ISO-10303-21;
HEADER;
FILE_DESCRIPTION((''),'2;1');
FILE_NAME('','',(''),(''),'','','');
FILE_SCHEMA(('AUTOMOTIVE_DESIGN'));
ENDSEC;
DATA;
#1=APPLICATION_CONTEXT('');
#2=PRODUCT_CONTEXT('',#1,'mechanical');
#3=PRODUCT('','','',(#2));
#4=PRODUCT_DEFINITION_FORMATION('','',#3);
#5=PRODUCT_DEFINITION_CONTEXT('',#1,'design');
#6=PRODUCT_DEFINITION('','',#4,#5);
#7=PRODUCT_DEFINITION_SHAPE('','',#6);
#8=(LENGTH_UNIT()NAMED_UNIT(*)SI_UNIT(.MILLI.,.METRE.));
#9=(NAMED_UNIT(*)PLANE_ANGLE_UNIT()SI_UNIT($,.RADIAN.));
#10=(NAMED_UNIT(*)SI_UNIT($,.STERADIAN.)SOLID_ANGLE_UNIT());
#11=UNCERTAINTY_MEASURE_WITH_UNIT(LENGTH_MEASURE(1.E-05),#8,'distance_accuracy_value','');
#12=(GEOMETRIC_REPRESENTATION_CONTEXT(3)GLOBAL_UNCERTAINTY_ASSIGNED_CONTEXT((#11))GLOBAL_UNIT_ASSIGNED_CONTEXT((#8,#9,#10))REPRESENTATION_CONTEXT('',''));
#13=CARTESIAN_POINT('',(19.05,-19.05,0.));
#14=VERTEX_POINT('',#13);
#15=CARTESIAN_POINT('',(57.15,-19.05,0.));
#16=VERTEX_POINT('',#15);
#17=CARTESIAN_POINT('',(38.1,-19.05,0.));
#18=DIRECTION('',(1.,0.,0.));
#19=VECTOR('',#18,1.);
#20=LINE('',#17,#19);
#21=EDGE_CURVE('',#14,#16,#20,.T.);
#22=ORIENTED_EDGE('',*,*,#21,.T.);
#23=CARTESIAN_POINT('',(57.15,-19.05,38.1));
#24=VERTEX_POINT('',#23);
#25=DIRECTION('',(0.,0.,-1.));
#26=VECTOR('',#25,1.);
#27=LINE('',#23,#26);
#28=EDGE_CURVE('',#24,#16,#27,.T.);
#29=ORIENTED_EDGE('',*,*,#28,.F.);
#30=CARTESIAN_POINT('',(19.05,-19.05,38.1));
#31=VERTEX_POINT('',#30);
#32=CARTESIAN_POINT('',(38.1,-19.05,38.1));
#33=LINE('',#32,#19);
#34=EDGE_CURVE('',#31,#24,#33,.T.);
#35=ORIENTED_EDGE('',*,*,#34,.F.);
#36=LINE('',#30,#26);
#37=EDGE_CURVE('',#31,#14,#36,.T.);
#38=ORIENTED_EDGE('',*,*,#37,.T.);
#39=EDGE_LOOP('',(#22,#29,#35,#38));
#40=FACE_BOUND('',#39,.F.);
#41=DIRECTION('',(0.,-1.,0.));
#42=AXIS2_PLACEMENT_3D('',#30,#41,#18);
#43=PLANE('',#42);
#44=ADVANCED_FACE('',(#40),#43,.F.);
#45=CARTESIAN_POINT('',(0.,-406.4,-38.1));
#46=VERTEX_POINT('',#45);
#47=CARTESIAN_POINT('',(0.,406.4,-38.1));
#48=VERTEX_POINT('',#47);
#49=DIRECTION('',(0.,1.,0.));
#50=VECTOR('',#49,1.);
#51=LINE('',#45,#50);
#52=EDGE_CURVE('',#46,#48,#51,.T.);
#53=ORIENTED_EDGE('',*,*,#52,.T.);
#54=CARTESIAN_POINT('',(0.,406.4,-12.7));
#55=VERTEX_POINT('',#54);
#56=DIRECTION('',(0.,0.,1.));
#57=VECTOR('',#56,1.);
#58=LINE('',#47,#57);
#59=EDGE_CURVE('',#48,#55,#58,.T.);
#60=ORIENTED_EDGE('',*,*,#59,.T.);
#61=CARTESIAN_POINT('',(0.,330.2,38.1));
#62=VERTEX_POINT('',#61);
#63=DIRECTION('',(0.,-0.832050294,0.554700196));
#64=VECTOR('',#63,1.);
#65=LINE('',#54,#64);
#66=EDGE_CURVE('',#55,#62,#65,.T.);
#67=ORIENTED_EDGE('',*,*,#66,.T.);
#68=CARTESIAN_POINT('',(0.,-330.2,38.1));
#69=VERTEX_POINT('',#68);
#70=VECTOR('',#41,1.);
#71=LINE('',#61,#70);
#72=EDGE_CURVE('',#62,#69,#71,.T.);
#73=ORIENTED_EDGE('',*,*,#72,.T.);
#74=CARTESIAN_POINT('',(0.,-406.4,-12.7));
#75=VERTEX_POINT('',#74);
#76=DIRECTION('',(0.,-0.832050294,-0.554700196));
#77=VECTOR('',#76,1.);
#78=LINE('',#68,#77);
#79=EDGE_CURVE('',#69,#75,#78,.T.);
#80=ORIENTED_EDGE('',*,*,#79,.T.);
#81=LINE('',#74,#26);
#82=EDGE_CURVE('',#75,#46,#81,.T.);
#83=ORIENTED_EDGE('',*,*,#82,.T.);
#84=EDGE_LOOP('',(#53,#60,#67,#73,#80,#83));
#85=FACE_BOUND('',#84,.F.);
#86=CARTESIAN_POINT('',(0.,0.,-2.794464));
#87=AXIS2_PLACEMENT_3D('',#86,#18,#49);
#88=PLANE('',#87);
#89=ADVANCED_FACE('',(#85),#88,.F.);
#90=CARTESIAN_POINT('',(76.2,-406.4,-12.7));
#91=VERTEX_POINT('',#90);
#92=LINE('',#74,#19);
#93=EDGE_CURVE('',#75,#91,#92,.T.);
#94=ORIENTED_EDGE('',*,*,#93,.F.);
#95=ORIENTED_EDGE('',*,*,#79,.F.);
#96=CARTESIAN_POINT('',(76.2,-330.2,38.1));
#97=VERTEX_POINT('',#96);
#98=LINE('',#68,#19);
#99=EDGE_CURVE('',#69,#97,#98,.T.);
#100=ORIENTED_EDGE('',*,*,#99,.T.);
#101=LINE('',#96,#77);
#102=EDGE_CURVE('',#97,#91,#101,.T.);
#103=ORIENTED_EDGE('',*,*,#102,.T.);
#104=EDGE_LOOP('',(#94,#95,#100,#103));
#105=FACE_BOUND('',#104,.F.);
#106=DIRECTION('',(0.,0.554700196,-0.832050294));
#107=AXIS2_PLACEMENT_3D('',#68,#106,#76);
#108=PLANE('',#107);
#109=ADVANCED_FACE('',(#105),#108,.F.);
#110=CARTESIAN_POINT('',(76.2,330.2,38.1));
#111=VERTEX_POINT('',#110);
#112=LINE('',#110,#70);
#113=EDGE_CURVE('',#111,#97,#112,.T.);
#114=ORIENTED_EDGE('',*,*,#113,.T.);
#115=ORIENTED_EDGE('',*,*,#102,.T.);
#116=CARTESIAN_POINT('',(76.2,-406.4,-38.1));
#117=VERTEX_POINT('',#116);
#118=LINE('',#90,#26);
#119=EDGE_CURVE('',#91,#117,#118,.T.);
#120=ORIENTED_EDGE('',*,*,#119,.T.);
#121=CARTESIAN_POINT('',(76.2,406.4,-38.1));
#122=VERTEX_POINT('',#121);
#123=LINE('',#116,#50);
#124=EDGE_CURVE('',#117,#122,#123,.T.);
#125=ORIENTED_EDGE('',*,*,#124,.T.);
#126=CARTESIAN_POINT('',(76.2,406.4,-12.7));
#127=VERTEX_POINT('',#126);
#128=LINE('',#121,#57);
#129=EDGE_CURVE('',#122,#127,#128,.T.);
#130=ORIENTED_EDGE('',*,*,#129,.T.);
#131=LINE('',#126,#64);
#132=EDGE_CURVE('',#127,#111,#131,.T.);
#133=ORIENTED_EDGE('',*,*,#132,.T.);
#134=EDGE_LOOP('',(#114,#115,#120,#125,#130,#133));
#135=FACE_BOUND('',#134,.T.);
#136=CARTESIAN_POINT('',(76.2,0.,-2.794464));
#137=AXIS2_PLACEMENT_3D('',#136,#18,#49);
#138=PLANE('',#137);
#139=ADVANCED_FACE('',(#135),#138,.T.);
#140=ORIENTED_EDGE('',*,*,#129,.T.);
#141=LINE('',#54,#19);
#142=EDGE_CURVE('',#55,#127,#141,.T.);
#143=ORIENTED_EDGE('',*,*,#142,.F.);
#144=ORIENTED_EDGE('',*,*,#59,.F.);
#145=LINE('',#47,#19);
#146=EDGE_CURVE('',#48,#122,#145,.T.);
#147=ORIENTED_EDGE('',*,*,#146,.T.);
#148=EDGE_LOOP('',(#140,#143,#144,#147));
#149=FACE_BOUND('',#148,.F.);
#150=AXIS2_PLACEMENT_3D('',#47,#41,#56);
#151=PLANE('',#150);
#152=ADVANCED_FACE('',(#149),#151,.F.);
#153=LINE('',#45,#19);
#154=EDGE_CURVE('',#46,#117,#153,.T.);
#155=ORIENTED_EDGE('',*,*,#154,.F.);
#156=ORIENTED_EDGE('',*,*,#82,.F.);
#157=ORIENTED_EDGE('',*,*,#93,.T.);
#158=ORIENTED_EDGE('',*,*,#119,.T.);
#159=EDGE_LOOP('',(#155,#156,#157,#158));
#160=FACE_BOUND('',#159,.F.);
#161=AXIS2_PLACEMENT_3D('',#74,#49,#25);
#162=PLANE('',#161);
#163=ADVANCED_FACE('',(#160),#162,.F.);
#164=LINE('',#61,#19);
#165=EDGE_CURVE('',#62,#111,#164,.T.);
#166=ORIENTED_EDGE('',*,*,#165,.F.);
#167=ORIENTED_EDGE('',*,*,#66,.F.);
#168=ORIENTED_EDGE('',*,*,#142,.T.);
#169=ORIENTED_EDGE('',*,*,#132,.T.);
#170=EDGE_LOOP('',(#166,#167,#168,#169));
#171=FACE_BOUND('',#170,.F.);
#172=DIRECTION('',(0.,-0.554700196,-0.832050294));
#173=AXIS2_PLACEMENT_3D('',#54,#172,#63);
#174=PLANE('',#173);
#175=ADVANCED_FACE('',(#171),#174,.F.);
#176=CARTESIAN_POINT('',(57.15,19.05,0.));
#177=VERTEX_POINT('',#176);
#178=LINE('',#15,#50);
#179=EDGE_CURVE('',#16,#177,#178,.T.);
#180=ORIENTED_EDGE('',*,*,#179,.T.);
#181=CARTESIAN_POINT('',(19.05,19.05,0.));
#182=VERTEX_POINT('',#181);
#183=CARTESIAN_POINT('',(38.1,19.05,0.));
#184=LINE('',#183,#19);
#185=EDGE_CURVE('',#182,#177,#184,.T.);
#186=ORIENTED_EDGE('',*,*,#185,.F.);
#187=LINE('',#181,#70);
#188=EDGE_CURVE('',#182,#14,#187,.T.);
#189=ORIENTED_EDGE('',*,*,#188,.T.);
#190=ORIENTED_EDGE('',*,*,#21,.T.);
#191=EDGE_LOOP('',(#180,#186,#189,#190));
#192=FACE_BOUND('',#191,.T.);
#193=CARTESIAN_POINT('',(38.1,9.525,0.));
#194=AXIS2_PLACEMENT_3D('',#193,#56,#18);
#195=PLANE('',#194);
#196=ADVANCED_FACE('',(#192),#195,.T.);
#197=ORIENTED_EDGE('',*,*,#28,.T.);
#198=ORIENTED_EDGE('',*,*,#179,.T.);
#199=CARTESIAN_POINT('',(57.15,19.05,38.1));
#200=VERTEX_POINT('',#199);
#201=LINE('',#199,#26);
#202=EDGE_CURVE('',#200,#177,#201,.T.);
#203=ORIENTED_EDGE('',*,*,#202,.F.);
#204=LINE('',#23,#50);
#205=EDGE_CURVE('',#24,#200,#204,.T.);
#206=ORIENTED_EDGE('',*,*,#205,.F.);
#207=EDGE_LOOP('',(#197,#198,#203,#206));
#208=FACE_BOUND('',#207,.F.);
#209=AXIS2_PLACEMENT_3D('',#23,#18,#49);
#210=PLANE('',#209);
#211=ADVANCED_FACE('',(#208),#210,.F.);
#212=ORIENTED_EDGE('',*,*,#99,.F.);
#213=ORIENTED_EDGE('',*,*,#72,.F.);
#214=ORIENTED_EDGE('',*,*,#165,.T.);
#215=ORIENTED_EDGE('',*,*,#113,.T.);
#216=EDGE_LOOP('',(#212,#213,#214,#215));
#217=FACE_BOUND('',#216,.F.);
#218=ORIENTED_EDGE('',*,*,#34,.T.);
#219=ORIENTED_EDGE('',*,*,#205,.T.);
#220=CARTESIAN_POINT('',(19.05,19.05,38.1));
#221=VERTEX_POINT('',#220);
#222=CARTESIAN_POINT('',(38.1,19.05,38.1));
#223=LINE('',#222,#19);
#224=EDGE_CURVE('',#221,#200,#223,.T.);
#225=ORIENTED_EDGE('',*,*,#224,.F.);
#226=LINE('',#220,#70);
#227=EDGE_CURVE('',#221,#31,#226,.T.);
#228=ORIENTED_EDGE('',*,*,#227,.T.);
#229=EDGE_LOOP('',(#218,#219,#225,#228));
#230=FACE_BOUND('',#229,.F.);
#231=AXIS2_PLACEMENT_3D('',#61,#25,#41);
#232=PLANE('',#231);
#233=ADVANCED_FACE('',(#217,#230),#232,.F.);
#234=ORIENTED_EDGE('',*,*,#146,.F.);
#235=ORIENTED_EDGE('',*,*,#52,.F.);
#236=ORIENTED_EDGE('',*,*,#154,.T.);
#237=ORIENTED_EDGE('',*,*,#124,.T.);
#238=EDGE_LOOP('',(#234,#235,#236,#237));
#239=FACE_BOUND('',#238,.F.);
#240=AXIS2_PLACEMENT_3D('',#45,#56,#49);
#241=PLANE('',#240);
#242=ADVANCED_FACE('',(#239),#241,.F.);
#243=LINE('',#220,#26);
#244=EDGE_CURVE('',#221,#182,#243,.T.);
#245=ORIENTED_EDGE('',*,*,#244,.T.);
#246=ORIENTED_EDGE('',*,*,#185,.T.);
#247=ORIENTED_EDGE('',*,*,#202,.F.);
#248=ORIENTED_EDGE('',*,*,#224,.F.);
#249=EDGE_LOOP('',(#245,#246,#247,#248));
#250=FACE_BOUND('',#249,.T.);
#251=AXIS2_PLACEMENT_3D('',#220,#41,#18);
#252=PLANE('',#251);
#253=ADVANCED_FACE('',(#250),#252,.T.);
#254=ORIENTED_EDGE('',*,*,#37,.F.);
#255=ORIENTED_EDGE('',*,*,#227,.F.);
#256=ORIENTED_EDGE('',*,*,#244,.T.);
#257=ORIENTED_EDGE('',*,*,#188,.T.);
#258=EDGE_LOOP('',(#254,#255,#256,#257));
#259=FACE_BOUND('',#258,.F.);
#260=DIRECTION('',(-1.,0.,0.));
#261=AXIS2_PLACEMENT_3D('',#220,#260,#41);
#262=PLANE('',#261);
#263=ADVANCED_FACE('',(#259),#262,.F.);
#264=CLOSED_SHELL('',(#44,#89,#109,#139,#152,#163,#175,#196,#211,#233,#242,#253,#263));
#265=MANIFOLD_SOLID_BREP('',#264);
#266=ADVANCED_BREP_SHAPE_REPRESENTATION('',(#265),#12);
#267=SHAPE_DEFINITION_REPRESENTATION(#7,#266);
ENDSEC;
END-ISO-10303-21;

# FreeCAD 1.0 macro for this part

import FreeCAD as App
import Part
import Sketcher
Q = App.Units.Quantity


def add_polygon(sketch, points):
    """Adds a closed chain of lines whose ends are joined by coincident constraints."""
    first, n = sketch.GeometryCount, len(points)
    for a, b in zip(points, points[1:] + points[:1]):
        sketch.addGeometry(Part.LineSegment(App.Vector(*a, 0), App.Vector(*b, 0)), False)
    for i in range(n):
        sketch.addConstraint(Sketcher.Constraint("Coincident", first + i, 2, first + (i + 1) % n, 1))

doc = App.newDocument("Part")
body = doc.addObject("PartDesign::Body", "Body")

# Sketch on YZ plane
sketch1 = body.newObject("Sketcher::SketchObject", "Sketch")
sketch1.AttachmentSupport = (doc.getObject("YZ_Plane"), [""])
sketch1.MapMode = "FlatFace"
add_polygon(sketch1, [(406, -13), (330, 38), (-330, 38), (-406, -13), (-406, -38), (406, -38)])  # lines 0-5
sketch1.addConstraint([
    Sketcher.Constraint("Horizontal", 1),
    Sketcher.Constraint("Vertical", 3),
    Sketcher.Constraint("Horizontal", 4),
    Sketcher.Constraint("Vertical", 5),
    Sketcher.Constraint("Symmetric", 2, 2, 5, 2, -2),
    Sketcher.Constraint("Equal", 0, 2),
    Sketcher.Constraint("DistanceX", 1, 2, 1, 1, Q("26 in")),
    Sketcher.Constraint("DistanceX", 4, 1, 4, 2, Q("32 in")),
    Sketcher.Constraint("DistanceY", 3, 2, 3, 1, Q("1 in")),
    Sketcher.Constraint("DistanceY", 2, 2, 1, 2, Q("2 in")),
    Sketcher.Constraint("DistanceY", -1, 1, 0, 2, Q("1.5 in")),
])
pad1 = body.newObject("PartDesign::Pad", "Pad")
pad1.Profile = sketch1
pad1.Length = Q("3 in")

# Sketch on XY plane
sketch2 = body.newObject("Sketcher::SketchObject", "Sketch001")
sketch2.AttachmentSupport = (doc.getObject("XY_Plane"), [""])
sketch2.MapMode = "FlatFace"
sketch2.AttachmentOffset = App.Placement(App.Vector(0, 0, 1.5 * 25.4), App.Rotation())
add_polygon(sketch2, [(19, 19), (19, -19), (57, -19), (57, 19)])  # lines 0-3
sketch2.addConstraint([
    Sketcher.Constraint("Vertical", 0),
    Sketcher.Constraint("Horizontal", 1),
    Sketcher.Constraint("Vertical", 2),
    Sketcher.Constraint("Horizontal", 3),
    Sketcher.Constraint("Equal", 3, 0),
    Sketcher.Constraint("DistanceX", 1, 1, 1, 2, Q("1.5 in")),
    Sketcher.Constraint("DistanceX", -1, 1, 0, 2, Q("0.75 in")),
    Sketcher.Constraint("DistanceY", 0, 2, -1, 1, Q("0.75 in")),
])
pocket1 = body.newObject("PartDesign::Pocket", "Pocket")
pocket1.Profile = sketch2
pocket1.Length = Q("1.5 in")

doc.recompute()
